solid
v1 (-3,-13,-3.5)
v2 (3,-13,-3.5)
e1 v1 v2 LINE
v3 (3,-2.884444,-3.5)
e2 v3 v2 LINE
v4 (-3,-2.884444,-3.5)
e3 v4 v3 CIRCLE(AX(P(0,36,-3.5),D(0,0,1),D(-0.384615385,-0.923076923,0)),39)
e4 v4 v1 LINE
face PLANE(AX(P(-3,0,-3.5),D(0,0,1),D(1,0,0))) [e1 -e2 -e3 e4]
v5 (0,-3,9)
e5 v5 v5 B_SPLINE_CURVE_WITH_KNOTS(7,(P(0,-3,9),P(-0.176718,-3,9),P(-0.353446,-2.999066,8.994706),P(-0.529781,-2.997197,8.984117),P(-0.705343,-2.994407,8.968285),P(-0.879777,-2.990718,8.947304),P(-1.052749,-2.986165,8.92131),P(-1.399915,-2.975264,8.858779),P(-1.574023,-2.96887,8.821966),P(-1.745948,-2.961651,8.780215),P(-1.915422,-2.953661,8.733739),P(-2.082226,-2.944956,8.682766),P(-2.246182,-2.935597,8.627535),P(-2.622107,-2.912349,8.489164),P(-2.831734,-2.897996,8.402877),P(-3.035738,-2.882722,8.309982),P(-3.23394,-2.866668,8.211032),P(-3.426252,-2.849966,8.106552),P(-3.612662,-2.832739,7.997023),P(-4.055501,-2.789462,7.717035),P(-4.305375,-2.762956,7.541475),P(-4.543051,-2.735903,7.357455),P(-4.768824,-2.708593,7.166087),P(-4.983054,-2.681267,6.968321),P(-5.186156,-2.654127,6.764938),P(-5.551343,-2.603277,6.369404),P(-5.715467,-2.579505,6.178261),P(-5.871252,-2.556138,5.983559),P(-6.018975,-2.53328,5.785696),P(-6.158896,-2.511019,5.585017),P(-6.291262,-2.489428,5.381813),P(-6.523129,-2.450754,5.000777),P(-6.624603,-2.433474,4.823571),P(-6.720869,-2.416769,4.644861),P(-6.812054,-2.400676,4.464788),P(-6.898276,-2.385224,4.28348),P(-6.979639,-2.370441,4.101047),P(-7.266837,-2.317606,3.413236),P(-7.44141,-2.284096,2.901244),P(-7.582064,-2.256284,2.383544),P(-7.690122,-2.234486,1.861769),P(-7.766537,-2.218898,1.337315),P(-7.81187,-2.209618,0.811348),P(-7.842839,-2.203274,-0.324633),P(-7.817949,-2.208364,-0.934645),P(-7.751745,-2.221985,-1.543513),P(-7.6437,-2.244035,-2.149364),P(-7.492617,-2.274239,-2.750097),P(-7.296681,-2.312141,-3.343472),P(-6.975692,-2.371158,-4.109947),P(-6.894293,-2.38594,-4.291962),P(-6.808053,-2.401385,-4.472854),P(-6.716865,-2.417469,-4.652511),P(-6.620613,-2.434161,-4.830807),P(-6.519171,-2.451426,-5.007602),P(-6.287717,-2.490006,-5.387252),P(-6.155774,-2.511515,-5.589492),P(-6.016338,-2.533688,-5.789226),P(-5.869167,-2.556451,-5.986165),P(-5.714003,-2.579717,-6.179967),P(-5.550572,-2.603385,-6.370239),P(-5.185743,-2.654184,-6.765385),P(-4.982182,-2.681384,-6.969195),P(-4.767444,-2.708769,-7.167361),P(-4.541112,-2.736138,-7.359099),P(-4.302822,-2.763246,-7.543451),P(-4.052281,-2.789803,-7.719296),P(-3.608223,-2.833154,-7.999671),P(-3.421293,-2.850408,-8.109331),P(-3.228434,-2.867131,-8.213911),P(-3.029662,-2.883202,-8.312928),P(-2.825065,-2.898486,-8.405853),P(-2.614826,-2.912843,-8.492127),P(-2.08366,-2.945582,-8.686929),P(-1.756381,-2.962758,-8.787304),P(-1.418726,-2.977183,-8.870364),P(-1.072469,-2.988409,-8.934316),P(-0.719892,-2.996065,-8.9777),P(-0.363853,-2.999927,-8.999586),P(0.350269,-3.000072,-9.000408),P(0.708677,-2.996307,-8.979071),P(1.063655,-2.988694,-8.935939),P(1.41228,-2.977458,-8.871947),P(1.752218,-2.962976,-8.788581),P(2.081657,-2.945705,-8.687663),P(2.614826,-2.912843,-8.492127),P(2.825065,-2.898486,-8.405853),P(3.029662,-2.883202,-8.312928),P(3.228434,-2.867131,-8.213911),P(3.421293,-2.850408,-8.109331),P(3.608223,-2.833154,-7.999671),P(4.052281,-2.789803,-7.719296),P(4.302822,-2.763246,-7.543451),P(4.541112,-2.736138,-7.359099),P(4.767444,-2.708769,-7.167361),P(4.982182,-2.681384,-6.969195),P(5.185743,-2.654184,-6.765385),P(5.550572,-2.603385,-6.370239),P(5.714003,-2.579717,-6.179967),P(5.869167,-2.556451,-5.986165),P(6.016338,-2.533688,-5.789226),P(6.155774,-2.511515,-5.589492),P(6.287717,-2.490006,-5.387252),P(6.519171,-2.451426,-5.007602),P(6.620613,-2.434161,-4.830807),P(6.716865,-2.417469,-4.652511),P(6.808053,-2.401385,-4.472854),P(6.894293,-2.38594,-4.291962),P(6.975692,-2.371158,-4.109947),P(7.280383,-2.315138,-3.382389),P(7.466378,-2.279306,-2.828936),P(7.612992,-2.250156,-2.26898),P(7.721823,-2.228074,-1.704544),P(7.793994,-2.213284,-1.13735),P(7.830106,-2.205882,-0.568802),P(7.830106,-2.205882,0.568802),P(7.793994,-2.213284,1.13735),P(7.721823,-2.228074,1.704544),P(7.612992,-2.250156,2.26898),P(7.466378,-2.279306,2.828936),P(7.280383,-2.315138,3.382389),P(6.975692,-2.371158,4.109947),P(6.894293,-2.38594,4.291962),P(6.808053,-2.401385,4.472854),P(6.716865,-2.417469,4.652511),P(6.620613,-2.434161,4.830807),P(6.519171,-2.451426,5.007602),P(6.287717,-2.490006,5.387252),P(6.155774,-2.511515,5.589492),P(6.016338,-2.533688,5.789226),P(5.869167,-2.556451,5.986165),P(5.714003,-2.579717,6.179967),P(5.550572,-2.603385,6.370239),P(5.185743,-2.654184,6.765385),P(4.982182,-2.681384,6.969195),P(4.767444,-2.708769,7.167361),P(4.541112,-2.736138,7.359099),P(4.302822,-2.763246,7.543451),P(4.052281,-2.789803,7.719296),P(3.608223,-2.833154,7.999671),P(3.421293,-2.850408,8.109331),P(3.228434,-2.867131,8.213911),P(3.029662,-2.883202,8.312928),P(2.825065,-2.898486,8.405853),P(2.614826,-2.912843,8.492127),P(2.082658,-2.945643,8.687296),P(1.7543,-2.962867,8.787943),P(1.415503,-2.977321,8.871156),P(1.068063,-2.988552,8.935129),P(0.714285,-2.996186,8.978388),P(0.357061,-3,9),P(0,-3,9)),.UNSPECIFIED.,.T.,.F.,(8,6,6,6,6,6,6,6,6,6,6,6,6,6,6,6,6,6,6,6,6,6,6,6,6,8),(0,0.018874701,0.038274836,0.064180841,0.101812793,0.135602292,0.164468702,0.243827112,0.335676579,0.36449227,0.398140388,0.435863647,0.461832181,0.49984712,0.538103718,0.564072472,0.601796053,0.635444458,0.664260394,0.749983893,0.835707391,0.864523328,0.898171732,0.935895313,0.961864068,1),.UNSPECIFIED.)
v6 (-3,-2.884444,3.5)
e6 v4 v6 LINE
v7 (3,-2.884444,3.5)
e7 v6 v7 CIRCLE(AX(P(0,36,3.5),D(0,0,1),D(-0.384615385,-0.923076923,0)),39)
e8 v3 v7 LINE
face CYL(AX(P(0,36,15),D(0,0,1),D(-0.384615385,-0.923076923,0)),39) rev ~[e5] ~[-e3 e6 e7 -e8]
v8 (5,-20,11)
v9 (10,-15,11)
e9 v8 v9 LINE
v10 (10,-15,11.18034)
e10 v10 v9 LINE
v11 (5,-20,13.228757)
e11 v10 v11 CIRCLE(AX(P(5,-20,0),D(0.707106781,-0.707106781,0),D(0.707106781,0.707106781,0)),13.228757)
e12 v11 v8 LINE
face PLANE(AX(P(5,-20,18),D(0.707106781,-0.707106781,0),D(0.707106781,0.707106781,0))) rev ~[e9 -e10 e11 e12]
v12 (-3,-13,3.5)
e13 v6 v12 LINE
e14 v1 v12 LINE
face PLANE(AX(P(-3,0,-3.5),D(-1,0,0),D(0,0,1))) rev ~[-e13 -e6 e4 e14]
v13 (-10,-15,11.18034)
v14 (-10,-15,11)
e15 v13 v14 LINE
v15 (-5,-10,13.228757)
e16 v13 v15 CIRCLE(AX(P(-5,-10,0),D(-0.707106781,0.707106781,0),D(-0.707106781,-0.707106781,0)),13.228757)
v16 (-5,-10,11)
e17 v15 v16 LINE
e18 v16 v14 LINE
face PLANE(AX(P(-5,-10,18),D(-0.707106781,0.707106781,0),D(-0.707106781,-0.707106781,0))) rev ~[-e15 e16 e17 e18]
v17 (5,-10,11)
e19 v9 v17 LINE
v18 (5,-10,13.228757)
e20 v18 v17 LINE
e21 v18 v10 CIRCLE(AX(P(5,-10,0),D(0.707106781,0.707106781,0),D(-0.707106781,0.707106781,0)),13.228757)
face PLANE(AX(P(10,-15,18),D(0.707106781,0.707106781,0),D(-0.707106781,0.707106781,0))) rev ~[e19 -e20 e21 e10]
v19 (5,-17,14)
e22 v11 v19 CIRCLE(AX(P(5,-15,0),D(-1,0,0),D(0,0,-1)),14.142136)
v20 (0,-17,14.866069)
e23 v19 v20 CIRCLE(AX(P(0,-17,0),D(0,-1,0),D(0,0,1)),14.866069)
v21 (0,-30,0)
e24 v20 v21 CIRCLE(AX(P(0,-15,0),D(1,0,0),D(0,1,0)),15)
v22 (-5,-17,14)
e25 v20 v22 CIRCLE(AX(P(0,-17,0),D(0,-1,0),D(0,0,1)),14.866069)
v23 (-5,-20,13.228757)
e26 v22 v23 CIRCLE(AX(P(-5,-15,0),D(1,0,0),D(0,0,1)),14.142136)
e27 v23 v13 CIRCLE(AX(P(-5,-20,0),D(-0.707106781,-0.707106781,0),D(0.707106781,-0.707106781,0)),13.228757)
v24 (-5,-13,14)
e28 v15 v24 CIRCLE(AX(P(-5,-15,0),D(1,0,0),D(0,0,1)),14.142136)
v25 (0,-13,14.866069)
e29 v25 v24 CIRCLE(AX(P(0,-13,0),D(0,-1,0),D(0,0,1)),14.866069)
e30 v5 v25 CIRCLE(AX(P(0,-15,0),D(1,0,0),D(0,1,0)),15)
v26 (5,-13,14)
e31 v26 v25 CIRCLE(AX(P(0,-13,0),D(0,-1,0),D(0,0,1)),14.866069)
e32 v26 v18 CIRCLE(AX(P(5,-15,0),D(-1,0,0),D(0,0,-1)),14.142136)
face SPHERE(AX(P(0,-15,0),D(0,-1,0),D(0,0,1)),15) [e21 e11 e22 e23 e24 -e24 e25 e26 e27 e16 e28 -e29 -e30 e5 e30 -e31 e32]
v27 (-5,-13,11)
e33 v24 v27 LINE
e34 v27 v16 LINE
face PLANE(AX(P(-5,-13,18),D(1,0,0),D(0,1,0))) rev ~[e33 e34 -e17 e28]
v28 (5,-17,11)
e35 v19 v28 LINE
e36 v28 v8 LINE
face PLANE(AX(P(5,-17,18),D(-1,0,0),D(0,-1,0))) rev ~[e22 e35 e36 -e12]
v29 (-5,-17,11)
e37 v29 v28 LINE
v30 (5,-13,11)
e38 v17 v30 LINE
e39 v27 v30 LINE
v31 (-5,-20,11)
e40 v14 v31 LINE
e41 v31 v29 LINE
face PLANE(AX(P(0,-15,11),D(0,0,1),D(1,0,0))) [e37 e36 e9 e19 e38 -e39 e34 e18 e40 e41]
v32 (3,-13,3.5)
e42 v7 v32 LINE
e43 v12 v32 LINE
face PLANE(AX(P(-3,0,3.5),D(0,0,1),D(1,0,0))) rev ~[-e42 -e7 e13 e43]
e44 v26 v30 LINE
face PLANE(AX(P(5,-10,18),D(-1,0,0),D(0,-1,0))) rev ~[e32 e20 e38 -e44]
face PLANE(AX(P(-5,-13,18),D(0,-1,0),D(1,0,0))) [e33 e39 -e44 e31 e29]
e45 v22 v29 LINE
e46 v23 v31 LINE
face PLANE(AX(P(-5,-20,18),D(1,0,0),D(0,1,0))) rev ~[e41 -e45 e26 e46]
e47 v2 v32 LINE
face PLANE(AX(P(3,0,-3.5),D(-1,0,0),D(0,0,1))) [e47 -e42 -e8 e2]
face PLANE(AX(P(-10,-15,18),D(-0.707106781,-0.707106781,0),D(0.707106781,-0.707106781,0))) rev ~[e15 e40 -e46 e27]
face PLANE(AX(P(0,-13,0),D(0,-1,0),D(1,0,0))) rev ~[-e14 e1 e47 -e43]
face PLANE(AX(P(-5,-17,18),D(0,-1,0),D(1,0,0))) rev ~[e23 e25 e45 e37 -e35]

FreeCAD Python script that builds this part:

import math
import FreeCAD as App
import Part
import Sketcher

V = App.Vector
Q = App.Units.Quantity


def add_polygon(sketch, points):
    """Adds a closed chain of lines whose ends are joined by coincident constraints."""
    first, n = sketch.GeometryCount, len(points)
    for a, b in zip(points, points[1:] + points[:1]):
        sketch.addGeometry(Part.LineSegment(App.Vector(*a, 0), App.Vector(*b, 0)), False)
    for i in range(n):
        sketch.addConstraint(Sketcher.Constraint("Coincident", first + i, 2, first + (i + 1) % n, 1))

doc = App.newDocument("Part")
body = doc.addObject("PartDesign::Body", "Body")

# Sketch on YZ plane
sketch1 = body.newObject("Sketcher::SketchObject", "Sketch")
sketch1.AttachmentSupport = (doc.getObject("YZ_Plane"), [""])
sketch1.MapMode = "FlatFace"
sketch1.addGeometry([
    Part.LineSegment(V(-30, 0, 0), V(0, 0, 0)),
    Part.ArcOfCircle(Part.Circle(V(-15, 0, 0), V(0, 0, 1), 15), math.radians(0), math.radians(180)),
], False)
sketch1.addConstraint([
    Sketcher.Constraint("Coincident", 0, 1, 1, 2),
    Sketcher.Constraint("Coincident", 1, 1, 0, 2),
    Sketcher.Constraint("Horizontal", 0),
    Sketcher.Constraint("Coincident", 1, 1, -1, 1),
    Sketcher.Constraint("PointOnObject", 1, 3, -1),
    Sketcher.Constraint("Radius", 1, Q("15 mm")),
])
revolution = body.newObject("PartDesign::Revolution", "Revolution")
revolution.Profile = sketch1
revolution.ReferenceAxis = (sketch1, ["H_Axis"])
revolution.Angle = 360

# Sketch on XY plane
sketch2 = body.newObject("Sketcher::SketchObject", "Sketch001")
sketch2.AttachmentSupport = (doc.getObject("XY_Plane"), [""])
sketch2.MapMode = "FlatFace"
sketch2.AttachmentOffset = App.Placement(V(0, 0, 15), App.Rotation())
sketch2.addGeometry([
    Part.LineSegment(V(15, 0, 0), V(-15, 0, 0)),
    Part.ArcOfCircle(Part.Circle(V(0, 36, 0), V(0, 0, 1), 39), math.radians(-113), math.radians(-67)),
], False)
sketch2.addConstraint([
    Sketcher.Constraint("Coincident", 0, 1, 1, 2),
    Sketcher.Constraint("Coincident", 1, 1, 0, 2),
    Sketcher.Constraint("Horizontal", 0),
    Sketcher.Constraint("Symmetric", 0, 1, 1, 1, -1, 1),
    Sketcher.Constraint("Radius", 1, Q("39 mm")),
    Sketcher.Constraint("DistanceX", 0, 2, 0, 1, Q("30 mm")),
])
pocket1 = body.newObject("PartDesign::Pocket", "Pocket")
pocket1.Profile = sketch2
pocket1.Type = "ThroughAll"

# Sketch on XZ plane
sketch3 = body.newObject("Sketcher::SketchObject", "Sketch002")
sketch3.AttachmentSupport = (doc.getObject("XZ_Plane"), [""])
sketch3.MapMode = "FlatFace"
add_polygon(sketch3, [(-3, 4), (-3, -4), (3, -4), (3, 4)])  # lines 0-3
sketch3.addConstraint([
    Sketcher.Constraint("Vertical", 0),
    Sketcher.Constraint("Horizontal", 1),
    Sketcher.Constraint("Vertical", 2),
    Sketcher.Constraint("Horizontal", 3),
    Sketcher.Constraint("Symmetric", 0, 2, 2, 2, -1, 1),
    Sketcher.Constraint("DistanceX", 1, 1, 1, 2, Q("6 mm")),
    Sketcher.Constraint("DistanceY", 0, 2, 0, 1, Q("7 mm")),
])
pocket2 = body.newObject("PartDesign::Pocket", "Pocket001")
pocket2.Profile = sketch3
pocket2.Length = 13
pocket2.Reversed = True

# Sketch on XY plane
sketch4 = body.newObject("Sketcher::SketchObject", "Sketch003")
sketch4.AttachmentSupport = (doc.getObject("XY_Plane"), [""])
sketch4.MapMode = "FlatFace"
sketch4.AttachmentOffset = App.Placement(V(0, 0, 18), App.Rotation())
add_polygon(sketch4, [(-5, -17), (5, -17), (5, -20), (10, -15), (5, -10), (5, -13), (-5, -13), (-5, -10), (-10, -15), (-5, -20)])  # lines 0-9
sketch4.addConstraint([
    Sketcher.Constraint("Horizontal", 0),
    Sketcher.Constraint("Vertical", 1),
    Sketcher.Constraint("Vertical", 4),
    Sketcher.Constraint("Horizontal", 5),
    Sketcher.Constraint("Vertical", 6),
    Sketcher.Constraint("Vertical", 9),
    Sketcher.Constraint("Symmetric", 3, 2, 6, 2, -2),
    Sketcher.Constraint("Symmetric", 2, 2, 7, 2, -2),
    Sketcher.Constraint("Symmetric", 1, 2, 8, 2, -2),
    Sketcher.Constraint("Perpendicular", 2, 3),
    Sketcher.Constraint("Perpendicular", 3, 7),
    Sketcher.Constraint("Vertical", 1, 2, 3, 2),
    Sketcher.Constraint("Equal", 1, 4),
    Sketcher.Constraint("DistanceX", 0, 1, 0, 2, Q("10 mm")),
    Sketcher.Constraint("DistanceY", 1, 2, 1, 1, Q("3 mm")),
    Sketcher.Constraint("DistanceY", 0, 2, -1, 1, Q("17 mm")),
    Sketcher.Constraint("DistanceX", -1, 1, 2, 2, Q("10 mm")),
])
pocket3 = body.newObject("PartDesign::Pocket", "Pocket002")
pocket3.Profile = sketch4
pocket3.Length = 7

doc.recompute()
